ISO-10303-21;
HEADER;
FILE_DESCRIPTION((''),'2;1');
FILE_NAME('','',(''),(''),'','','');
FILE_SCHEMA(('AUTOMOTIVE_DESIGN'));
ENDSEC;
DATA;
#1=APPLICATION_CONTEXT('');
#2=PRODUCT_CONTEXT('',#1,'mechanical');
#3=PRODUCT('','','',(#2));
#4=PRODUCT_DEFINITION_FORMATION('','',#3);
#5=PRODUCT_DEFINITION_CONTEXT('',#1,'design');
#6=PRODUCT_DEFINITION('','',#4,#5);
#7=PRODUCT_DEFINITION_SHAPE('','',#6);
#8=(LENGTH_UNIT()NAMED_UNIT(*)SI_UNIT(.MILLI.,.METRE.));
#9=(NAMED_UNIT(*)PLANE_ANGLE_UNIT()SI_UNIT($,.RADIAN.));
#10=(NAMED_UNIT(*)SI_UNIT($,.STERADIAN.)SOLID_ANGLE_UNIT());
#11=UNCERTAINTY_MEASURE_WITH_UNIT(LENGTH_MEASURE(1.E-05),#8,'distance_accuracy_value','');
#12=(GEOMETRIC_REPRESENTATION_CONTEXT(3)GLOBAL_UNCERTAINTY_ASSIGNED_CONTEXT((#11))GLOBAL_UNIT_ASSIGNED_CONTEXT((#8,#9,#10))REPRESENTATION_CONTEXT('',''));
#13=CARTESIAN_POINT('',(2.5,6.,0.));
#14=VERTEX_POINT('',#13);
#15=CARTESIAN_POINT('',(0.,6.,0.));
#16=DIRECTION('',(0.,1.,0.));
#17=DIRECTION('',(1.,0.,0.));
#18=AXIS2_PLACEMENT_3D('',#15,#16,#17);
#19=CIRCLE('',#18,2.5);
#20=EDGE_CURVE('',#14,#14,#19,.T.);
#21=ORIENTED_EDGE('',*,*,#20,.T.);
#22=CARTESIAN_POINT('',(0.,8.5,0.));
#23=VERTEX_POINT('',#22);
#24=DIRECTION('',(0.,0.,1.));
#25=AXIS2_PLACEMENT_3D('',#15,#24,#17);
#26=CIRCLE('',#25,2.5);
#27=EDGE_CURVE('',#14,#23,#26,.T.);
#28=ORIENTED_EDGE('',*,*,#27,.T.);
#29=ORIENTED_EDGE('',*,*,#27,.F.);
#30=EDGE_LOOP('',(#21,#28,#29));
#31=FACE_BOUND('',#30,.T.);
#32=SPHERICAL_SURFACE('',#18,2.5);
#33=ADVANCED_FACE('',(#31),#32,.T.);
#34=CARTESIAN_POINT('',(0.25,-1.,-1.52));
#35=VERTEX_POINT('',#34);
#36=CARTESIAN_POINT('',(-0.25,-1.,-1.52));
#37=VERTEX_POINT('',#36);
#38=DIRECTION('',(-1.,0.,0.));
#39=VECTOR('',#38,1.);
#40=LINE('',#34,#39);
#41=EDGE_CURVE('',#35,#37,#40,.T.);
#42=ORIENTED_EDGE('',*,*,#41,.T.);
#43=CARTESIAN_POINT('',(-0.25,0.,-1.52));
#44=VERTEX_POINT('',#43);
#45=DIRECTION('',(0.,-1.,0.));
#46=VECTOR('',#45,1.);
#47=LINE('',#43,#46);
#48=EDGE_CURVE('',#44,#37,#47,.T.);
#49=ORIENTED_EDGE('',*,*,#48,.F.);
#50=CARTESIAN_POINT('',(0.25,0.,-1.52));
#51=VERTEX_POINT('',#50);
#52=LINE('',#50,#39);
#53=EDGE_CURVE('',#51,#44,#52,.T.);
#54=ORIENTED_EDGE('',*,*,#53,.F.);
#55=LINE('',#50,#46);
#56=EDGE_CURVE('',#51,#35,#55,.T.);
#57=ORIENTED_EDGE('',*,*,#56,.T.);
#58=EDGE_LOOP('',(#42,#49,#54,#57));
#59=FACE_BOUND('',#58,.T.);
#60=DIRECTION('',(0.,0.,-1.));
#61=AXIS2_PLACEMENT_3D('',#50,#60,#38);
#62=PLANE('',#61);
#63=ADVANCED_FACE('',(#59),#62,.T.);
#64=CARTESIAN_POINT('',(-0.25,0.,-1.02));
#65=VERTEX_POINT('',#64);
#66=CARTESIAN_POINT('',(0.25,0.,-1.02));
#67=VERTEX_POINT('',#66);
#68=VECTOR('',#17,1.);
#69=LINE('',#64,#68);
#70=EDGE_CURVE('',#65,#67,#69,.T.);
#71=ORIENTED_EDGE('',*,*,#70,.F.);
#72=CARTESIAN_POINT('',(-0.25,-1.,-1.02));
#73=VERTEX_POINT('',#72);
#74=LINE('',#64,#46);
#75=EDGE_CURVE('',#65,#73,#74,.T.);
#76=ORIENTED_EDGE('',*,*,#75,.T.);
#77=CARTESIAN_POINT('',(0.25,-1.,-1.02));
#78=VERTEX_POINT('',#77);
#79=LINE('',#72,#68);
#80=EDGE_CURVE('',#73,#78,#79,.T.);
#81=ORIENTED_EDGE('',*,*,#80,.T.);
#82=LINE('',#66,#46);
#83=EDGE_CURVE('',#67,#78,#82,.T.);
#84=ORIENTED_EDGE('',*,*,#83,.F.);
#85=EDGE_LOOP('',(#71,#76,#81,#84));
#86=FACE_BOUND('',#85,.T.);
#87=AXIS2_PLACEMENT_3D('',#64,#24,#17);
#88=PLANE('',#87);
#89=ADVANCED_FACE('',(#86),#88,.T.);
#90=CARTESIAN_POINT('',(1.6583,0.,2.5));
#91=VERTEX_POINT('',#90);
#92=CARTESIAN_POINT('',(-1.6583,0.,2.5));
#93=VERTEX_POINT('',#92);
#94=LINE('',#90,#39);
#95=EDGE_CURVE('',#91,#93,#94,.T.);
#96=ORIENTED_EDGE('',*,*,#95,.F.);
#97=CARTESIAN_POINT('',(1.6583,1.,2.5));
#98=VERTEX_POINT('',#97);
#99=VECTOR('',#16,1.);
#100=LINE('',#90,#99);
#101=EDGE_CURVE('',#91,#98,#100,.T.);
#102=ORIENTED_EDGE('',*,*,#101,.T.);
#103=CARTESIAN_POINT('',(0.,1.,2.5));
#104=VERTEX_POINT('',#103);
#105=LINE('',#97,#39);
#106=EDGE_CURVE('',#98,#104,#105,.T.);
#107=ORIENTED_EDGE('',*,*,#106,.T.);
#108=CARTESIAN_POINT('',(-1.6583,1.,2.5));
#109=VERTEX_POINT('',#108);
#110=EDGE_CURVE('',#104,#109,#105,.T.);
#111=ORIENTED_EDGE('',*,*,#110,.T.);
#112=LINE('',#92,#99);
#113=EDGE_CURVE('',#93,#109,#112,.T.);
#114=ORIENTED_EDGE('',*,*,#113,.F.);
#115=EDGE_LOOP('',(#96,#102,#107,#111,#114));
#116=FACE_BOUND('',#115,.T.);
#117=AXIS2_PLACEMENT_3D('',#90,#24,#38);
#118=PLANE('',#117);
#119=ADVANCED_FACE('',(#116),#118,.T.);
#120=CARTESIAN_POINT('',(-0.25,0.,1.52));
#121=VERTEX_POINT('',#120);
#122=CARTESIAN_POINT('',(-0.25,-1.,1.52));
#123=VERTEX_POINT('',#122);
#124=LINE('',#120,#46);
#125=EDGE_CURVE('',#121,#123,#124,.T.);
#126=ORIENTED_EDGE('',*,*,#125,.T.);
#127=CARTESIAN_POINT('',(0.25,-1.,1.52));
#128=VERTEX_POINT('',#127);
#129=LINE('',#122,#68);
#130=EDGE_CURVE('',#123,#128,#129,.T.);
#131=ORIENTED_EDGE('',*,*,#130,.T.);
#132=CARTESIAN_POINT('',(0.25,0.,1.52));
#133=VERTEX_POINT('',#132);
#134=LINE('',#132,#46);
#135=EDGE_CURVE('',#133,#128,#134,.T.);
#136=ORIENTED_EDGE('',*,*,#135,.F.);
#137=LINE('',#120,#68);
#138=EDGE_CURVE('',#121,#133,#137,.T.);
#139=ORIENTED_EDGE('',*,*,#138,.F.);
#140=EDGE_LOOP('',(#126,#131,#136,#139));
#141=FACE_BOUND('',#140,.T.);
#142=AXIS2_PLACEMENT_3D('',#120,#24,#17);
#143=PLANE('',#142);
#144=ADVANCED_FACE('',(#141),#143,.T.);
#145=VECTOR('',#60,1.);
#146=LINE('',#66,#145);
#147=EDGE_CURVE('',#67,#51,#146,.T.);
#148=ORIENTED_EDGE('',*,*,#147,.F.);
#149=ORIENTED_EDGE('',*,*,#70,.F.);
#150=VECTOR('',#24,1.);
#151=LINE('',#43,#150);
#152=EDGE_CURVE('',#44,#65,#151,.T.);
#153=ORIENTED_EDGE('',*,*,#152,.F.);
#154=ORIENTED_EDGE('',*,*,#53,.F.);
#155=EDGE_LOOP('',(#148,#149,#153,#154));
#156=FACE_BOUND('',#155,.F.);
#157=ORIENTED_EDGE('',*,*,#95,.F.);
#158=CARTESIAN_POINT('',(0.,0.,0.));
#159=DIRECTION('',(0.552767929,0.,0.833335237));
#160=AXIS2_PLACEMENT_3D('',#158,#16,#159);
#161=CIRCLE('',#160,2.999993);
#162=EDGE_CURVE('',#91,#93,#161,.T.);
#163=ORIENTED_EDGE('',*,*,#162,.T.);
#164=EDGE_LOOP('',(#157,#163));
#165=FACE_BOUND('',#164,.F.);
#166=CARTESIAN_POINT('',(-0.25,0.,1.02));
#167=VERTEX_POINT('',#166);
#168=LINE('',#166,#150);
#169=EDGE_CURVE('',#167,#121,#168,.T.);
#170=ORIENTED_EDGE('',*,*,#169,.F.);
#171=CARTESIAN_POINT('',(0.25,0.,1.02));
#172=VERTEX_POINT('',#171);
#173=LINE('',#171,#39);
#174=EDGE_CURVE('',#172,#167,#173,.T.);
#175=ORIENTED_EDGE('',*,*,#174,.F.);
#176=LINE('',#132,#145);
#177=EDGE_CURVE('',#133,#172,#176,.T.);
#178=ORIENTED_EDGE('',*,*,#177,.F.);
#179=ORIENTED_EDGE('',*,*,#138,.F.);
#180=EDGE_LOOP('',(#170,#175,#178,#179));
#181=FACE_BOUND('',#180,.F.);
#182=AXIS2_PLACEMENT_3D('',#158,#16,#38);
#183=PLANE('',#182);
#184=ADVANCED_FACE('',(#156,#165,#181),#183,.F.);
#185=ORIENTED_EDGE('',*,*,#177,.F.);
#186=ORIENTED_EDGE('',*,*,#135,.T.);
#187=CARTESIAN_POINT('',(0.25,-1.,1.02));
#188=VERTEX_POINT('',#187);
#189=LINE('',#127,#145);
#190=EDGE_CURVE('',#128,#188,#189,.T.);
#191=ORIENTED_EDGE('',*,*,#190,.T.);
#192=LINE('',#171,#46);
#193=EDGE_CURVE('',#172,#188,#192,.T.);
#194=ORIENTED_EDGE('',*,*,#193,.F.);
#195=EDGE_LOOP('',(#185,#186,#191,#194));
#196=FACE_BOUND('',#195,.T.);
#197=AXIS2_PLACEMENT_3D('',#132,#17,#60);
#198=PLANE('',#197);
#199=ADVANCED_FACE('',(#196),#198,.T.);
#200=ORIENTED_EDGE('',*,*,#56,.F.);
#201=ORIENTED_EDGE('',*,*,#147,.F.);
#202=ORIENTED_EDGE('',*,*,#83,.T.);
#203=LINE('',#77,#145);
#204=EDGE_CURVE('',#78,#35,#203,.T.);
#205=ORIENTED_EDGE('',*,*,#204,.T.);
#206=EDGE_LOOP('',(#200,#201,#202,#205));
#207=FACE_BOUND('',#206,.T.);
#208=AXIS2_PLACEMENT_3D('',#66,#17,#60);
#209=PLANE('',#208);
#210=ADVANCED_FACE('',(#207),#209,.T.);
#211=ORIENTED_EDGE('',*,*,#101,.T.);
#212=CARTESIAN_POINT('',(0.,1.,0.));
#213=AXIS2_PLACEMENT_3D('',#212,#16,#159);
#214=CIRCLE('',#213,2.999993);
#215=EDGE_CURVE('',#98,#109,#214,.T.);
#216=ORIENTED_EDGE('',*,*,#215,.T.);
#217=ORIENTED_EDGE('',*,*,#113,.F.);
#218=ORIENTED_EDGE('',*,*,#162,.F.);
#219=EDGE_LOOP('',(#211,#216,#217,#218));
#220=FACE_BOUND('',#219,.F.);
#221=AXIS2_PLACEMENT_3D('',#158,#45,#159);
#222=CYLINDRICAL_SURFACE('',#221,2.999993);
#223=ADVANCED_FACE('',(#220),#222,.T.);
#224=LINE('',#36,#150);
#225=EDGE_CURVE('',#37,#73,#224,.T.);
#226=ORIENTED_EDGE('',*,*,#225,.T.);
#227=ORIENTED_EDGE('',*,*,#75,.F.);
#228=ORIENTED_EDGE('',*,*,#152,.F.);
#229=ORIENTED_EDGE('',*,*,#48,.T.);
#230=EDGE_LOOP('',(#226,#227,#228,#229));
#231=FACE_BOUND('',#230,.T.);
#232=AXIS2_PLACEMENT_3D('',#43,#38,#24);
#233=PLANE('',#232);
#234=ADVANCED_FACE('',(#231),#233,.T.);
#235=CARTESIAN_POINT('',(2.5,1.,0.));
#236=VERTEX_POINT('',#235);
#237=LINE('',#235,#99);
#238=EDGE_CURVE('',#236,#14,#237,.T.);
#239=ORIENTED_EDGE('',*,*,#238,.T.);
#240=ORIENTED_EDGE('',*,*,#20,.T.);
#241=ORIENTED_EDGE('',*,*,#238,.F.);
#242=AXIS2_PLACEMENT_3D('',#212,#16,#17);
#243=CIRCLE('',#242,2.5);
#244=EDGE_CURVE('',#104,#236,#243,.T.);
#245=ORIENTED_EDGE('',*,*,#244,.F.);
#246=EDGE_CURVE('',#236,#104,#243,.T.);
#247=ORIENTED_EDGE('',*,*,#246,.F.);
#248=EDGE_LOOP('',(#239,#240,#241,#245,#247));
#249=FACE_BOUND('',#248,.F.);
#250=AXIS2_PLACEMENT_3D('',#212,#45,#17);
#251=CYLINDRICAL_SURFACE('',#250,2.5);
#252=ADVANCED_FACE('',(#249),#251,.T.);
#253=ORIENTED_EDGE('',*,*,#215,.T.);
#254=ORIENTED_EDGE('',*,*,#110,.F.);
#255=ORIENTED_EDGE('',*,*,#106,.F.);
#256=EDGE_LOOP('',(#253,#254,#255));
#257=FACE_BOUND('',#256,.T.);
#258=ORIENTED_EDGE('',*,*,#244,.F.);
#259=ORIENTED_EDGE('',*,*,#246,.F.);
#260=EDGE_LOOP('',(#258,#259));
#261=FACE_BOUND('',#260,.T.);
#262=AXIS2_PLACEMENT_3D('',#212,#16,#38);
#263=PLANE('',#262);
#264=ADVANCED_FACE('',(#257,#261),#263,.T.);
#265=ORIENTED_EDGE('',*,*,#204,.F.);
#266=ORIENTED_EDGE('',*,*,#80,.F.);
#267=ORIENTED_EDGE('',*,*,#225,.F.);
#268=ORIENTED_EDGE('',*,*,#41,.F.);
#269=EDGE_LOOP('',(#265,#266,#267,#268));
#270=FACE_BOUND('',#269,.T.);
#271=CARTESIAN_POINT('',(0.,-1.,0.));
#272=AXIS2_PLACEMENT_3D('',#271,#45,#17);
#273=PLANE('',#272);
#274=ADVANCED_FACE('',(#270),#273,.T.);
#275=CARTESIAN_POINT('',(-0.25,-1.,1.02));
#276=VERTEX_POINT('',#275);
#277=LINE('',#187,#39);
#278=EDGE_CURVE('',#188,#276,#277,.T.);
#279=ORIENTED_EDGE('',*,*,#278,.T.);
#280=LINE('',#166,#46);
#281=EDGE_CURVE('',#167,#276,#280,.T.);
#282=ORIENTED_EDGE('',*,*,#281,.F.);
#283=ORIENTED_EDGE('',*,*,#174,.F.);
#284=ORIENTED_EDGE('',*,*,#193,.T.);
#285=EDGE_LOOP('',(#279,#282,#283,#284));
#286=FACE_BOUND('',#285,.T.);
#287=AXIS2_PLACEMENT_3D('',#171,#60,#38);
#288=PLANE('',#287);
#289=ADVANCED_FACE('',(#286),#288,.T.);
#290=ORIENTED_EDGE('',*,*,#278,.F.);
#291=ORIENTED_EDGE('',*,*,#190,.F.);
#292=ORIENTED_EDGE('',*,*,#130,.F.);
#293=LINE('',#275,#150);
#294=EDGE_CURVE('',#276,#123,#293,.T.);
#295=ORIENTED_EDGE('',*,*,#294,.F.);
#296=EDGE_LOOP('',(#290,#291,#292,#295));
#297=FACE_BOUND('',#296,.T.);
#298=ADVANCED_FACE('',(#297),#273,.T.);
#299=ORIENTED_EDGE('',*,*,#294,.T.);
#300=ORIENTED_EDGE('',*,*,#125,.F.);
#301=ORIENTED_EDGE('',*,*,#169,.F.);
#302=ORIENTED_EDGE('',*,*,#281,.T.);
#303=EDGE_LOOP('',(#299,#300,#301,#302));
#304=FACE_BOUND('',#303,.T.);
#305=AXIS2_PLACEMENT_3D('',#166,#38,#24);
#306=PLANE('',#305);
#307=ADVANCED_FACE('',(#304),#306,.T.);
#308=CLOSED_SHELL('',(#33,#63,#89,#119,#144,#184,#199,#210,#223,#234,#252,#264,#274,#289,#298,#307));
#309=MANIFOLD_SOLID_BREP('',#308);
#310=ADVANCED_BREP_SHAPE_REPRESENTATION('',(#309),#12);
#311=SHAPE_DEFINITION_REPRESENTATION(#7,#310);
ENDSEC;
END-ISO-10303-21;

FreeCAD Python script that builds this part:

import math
import FreeCAD as App
import Part
import Sketcher

V = App.Vector


def edges_at(feature, points):
    """Names of the edges that pass closest to the given points."""
    edges = feature.Shape.Edges
    near = lambda p: min(range(len(edges)), key=lambda i: edges[i].distToShape(Part.Vertex(*p))[0])
    return sorted({f"Edge{near(p) + 1}" for p in points})

doc = App.newDocument("Part")
body = doc.addObject("PartDesign::Body", "Body")

sketch1 = body.newObject("Sketcher::SketchObject", "Sketch")
sketch1.AttachmentSupport = (doc.getObject("XZ_Plane"), [""])
sketch1.MapMode = "FlatFace"
sketch1.addGeometry([
    Part.ArcOfCircle(Part.Circle(V(0, 0, 0), V(0, 0, 1), 3), math.radians(124), math.radians(416)),
    Part.LineSegment(V(-1.7, 2.5, 0), V(1.7, 2.5, 0)),
], False)
sketch1.addConstraint([
    Sketcher.Constraint("Coincident", 0, 1, 1, 1),
    Sketcher.Constraint("Coincident", 1, 2, 0, 2),
    Sketcher.Constraint("Horizontal", 1),
    Sketcher.Constraint("Coincident", 0, 3, -1, 1),
    Sketcher.Constraint("Radius", 0, 3.0),
    Sketcher.Constraint("DistanceY", -1, 1, 0, 1, 2.5),
])
pad1 = body.newObject("PartDesign::Pad", "Pad")
pad1.Profile = sketch1
pad1.Length = 1
pad1.Reversed = True

sketch2 = body.newObject("Sketcher::SketchObject", "Sketch001")
sketch2.AttachmentSupport = (doc.getObject("XZ_Plane"), [""])
sketch2.MapMode = "FlatFace"
sketch2.AttachmentOffset = App.Placement(V(0, 0, -1), App.Rotation())
sketch2.addGeometry(Part.Circle(V(0, 0, 0), V(0, 0, 1), 2.5), False)
sketch2.addConstraint([
    Sketcher.Constraint("Coincident", 0, 3, -1, 1),
    Sketcher.Constraint("Diameter", 0, 5.0),
])
pad2 = body.newObject("PartDesign::Pad", "Pad001")
pad2.Profile = sketch2
pad2.Length = 7.5
pad2.Reversed = True
doc.recompute()

fillet = body.newObject("PartDesign::Fillet", "Fillet")
fillet.Base = (pad2, edges_at(pad2, [(-2.5, 8.5, 0)]))
fillet.Radius = 2.5

sketch3 = body.newObject("Sketcher::SketchObject", "Sketch002")
sketch3.AttachmentSupport = (doc.getObject("XZ_Plane"), [""])
sketch3.MapMode = "FlatFace"
sketch3.addGeometry([
    Part.LineSegment(V(0.2, 1.5, 0), V(-0.2, 1.5, 0)),
    Part.LineSegment(V(-0.2, 1.5, 0), V(-0.2, 1, 0)),
    Part.LineSegment(V(-0.2, 1, 0), V(0.2, 1, 0)),
    Part.LineSegment(V(0.2, 1, 0), V(0.2, 1.5, 0)),
    Part.LineSegment(V(0.2, -1, 0), V(-0.2, -1, 0)),
    Part.LineSegment(V(-0.2, -1, 0), V(-0.2, -1.5, 0)),
    Part.LineSegment(V(-0.2, -1.5, 0), V(0.2, -1.5, 0)),
    Part.LineSegment(V(0.2, -1.5, 0), V(0.2, -1, 0)),
], False)
sketch3.addConstraint([
    Sketcher.Constraint("Coincident", 0, 2, 1, 1),
    Sketcher.Constraint("Coincident", 1, 2, 2, 1),
    Sketcher.Constraint("Coincident", 2, 2, 3, 1),
    Sketcher.Constraint("Coincident", 3, 2, 0, 1),
    Sketcher.Constraint("Coincident", 4, 2, 5, 1),
    Sketcher.Constraint("Coincident", 5, 2, 6, 1),
    Sketcher.Constraint("Coincident", 6, 2, 7, 1),
    Sketcher.Constraint("Coincident", 7, 2, 4, 1),
    Sketcher.Constraint("Horizontal", 0),
    Sketcher.Constraint("Vertical", 1),
    Sketcher.Constraint("Horizontal", 2),
    Sketcher.Constraint("Vertical", 3),
    Sketcher.Constraint("Horizontal", 4),
    Sketcher.Constraint("Vertical", 5),
    Sketcher.Constraint("Horizontal", 6),
    Sketcher.Constraint("Vertical", 7),
    Sketcher.Constraint("Symmetric", 2, 2, 4, 2, -1, 1),
    Sketcher.Constraint("Symmetric", 0, 2, 6, 2, -1, 1),
    Sketcher.Constraint("Vertical", 1, 2, 4, 2),
    Sketcher.Constraint("Equal", 6, 1),
    Sketcher.Constraint("DistanceX", 0, 2, 0, 1, 0.5),
    Sketcher.Constraint("DistanceY", 4, 2, 0, 2, 2.54),
])
pad3 = body.newObject("PartDesign::Pad", "Pad002")
pad3.Profile = sketch3
pad3.Length = 1

doc.recompute()
